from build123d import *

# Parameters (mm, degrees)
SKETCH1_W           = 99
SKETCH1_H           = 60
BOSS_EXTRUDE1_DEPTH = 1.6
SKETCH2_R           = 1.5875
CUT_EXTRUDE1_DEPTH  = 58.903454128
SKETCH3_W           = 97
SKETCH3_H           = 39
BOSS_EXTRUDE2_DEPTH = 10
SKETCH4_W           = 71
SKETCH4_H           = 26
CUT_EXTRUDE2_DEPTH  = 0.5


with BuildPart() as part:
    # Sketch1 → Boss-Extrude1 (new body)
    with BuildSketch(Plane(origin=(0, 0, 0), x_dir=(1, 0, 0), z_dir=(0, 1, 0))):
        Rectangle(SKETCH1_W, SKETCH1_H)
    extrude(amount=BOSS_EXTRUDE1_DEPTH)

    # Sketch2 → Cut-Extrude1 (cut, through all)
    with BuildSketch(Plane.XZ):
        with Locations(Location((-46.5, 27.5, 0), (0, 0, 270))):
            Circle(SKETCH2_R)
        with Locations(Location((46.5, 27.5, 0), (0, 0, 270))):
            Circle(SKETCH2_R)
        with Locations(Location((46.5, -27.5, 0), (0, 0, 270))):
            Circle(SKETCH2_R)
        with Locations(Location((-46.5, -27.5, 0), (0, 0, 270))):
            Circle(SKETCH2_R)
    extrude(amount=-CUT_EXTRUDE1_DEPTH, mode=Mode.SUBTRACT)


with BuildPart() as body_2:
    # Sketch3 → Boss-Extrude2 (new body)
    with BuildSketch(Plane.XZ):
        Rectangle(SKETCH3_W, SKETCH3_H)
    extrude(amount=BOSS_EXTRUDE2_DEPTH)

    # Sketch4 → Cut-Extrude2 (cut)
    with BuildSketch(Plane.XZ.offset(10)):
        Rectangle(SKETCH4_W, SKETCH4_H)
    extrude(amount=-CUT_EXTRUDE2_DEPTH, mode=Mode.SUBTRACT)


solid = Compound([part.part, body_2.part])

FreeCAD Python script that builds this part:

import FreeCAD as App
import Part
import Sketcher

V = App.Vector
Q = App.Units.Quantity

doc = App.newDocument("Part")
body = doc.addObject("PartDesign::Body", "Body")

# Sketch on XZ plane
sketch1 = body.newObject("Sketcher::SketchObject", "Sketch")
sketch1.AttachmentSupport = (doc.getObject("XZ_Plane"), [""])
sketch1.MapMode = "FlatFace"
sketch1.addGeometry(Part.LineSegment(V(-50, -30, 0), V(-50, 30, 0)), False)
sketch1.addGeometry(Part.LineSegment(V(-50, 30, 0), V(50, 30, 0)), False)
sketch1.addGeometry(Part.LineSegment(V(50, 30, 0), V(50, -30, 0)), False)
sketch1.addGeometry(Part.LineSegment(V(50, -30, 0), V(-50, -30, 0)), False)
sketch1.addConstraint(Sketcher.Constraint("Coincident", 0, 2, 1, 1))
sketch1.addConstraint(Sketcher.Constraint("Coincident", 1, 2, 2, 1))
sketch1.addConstraint(Sketcher.Constraint("Coincident", 2, 2, 3, 1))
sketch1.addConstraint(Sketcher.Constraint("Coincident", 3, 2, 0, 1))
sketch1.addConstraint(Sketcher.Constraint("Vertical", 0))
sketch1.addConstraint(Sketcher.Constraint("Horizontal", 1))
sketch1.addConstraint(Sketcher.Constraint("Vertical", 2))
sketch1.addConstraint(Sketcher.Constraint("Horizontal", 3))
sketch1.addConstraint(Sketcher.Constraint("Symmetric", 0, 2, 2, 2, -1, 1))
sketch1.addConstraint(Sketcher.Constraint("DistanceX", 1, 1, 1, 2, Q("99 mm")))
sketch1.addConstraint(Sketcher.Constraint("DistanceY", 0, 1, 0, 2, Q("60 mm")))
pad1 = body.newObject("PartDesign::Pad", "Pad")
pad1.Profile = sketch1
pad1.Length = 1.6
pad1.Reversed = True

# Sketch on XZ plane
sketch2 = body.newObject("Sketcher::SketchObject", "Sketch001")
sketch2.AttachmentSupport = (doc.getObject("XZ_Plane"), [""])
sketch2.MapMode = "FlatFace"
sketch2.addGeometry(Part.Circle(V(-46.5, 27.5, 0), V(0, 0, 1), 1.6), False)
sketch2.addGeometry(Part.Circle(V(46.5, 27.5, 0), V(0, 0, 1), 1.6), False)
sketch2.addGeometry(Part.Circle(V(46.5, -27.5, 0), V(0, 0, 1), 1.6), False)
sketch2.addGeometry(Part.Circle(V(-46.5, -27.5, 0), V(0, 0, 1), 1.6), False)
sketch2.addConstraint(Sketcher.Constraint("Equal", 0, 1))
sketch2.addConstraint(Sketcher.Constraint("Equal", 1, 2))
sketch2.addConstraint(Sketcher.Constraint("Equal", 2, 3))
sketch2.addConstraint(Sketcher.Constraint("Symmetric", 0, 3, 2, 3, -1, 1))
sketch2.addConstraint(Sketcher.Constraint("Symmetric", 1, 3, 3, 3, -1, 1))
sketch2.addConstraint(Sketcher.Constraint("Symmetric", 0, 3, 1, 3, -2))
sketch2.addConstraint(Sketcher.Constraint("Diameter", 0, Q("3.175 mm")))
sketch2.addConstraint(Sketcher.Constraint("DistanceX", 0, 3, 1, 3, Q("93 mm")))
sketch2.addConstraint(Sketcher.Constraint("DistanceY", 2, 3, 1, 3, Q("55 mm")))
pocket1 = body.newObject("PartDesign::Pocket", "Pocket")
pocket1.Profile = sketch2
pocket1.Type = "ThroughAll"
body2 = doc.addObject("PartDesign::Body", "Body001")

# Sketch on XZ plane
sketch3 = body2.newObject("Sketcher::SketchObject", "Sketch002")
sketch3.AttachmentSupport = (doc.getObject("XZ_Plane001"), [""])
sketch3.MapMode = "FlatFace"
sketch3.addGeometry(Part.LineSegment(V(-48, 20, 0), V(-48, -20, 0)), False)
sketch3.addGeometry(Part.LineSegment(V(-48, -20, 0), V(48, -20, 0)), False)
sketch3.addGeometry(Part.LineSegment(V(48, -20, 0), V(48, 20, 0)), False)
sketch3.addGeometry(Part.LineSegment(V(48, 20, 0), V(-48, 20, 0)), False)
sketch3.addConstraint(Sketcher.Constraint("Coincident", 0, 2, 1, 1))
sketch3.addConstraint(Sketcher.Constraint("Coincident", 1, 2, 2, 1))
sketch3.addConstraint(Sketcher.Constraint("Coincident", 2, 2, 3, 1))
sketch3.addConstraint(Sketcher.Constraint("Coincident", 3, 2, 0, 1))
sketch3.addConstraint(Sketcher.Constraint("Vertical", 0))
sketch3.addConstraint(Sketcher.Constraint("Horizontal", 1))
sketch3.addConstraint(Sketcher.Constraint("Vertical", 2))
sketch3.addConstraint(Sketcher.Constraint("Horizontal", 3))
sketch3.addConstraint(Sketcher.Constraint("Symmetric", 0, 2, 2, 2, -1, 1))
sketch3.addConstraint(Sketcher.Constraint("DistanceX", 1, 1, 1, 2, Q("97 mm")))
sketch3.addConstraint(Sketcher.Constraint("DistanceY", 0, 2, 0, 1, Q("39 mm")))
pad2 = body2.newObject("PartDesign::Pad", "Pad001")
pad2.Profile = sketch3
pad2.Length = 10

# Sketch on XZ plane
sketch4 = body2.newObject("Sketcher::SketchObject", "Sketch003")
sketch4.AttachmentSupport = (doc.getObject("XZ_Plane001"), [""])
sketch4.MapMode = "FlatFace"
sketch4.AttachmentOffset = App.Placement(V(0, 0, 10), App.Rotation())
sketch4.addGeometry(Part.LineSegment(V(-36, 13, 0), V(-36, -13, 0)), False)
sketch4.addGeometry(Part.LineSegment(V(-36, -13, 0), V(36, -13, 0)), False)
sketch4.addGeometry(Part.LineSegment(V(36, -13, 0), V(36, 13, 0)), False)
sketch4.addGeometry(Part.LineSegment(V(36, 13, 0), V(-36, 13, 0)), False)
sketch4.addConstraint(Sketcher.Constraint("Coincident", 0, 2, 1, 1))
sketch4.addConstraint(Sketcher.Constraint("Coincident", 1, 2, 2, 1))
sketch4.addConstraint(Sketcher.Constraint("Coincident", 2, 2, 3, 1))
sketch4.addConstraint(Sketcher.Constraint("Coincident", 3, 2, 0, 1))
sketch4.addConstraint(Sketcher.Constraint("Vertical", 0))
sketch4.addConstraint(Sketcher.Constraint("Horizontal", 1))
sketch4.addConstraint(Sketcher.Constraint("Vertical", 2))
sketch4.addConstraint(Sketcher.Constraint("Horizontal", 3))
sketch4.addConstraint(Sketcher.Constraint("Symmetric", 0, 2, 2, 2, -1, 1))
sketch4.addConstraint(Sketcher.Constraint("DistanceX", 1, 1, 1, 2, Q("71 mm")))
sketch4.addConstraint(Sketcher.Constraint("DistanceY", 0, 2, 0, 1, Q("26 mm")))
pocket2 = body2.newObject("PartDesign::Pocket", "Pocket001")
pocket2.Profile = sketch4
pocket2.Length = 0.5

doc.recompute()
